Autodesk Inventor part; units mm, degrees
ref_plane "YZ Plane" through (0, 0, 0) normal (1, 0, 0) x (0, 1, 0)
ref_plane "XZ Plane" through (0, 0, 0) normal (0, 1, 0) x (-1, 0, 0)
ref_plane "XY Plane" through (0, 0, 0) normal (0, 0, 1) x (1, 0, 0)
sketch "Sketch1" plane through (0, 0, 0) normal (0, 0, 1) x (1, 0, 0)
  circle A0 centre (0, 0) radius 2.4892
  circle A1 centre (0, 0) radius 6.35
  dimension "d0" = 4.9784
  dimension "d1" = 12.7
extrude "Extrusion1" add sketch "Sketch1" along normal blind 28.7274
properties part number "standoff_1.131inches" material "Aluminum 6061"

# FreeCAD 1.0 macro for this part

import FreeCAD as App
import Part
import Sketcher

V = App.Vector
Q = App.Units.Quantity

doc = App.newDocument("Part")
body = doc.addObject("PartDesign::Body", "Body")

# Sketch on XY plane
sketch1 = body.newObject("Sketcher::SketchObject", "Sketch")
sketch1.AttachmentSupport = (doc.getObject("XY_Plane"), [""])
sketch1.MapMode = "FlatFace"
sketch1.addGeometry([
    Part.Circle(V(0, 0, 0), V(0, 0, 1), 6.3),
    Part.Circle(V(0, 0, 0), V(0, 0, 1), 2.5),
], False)
sketch1.addConstraint([
    Sketcher.Constraint("Coincident", 0, 3, -1, 1),
    Sketcher.Constraint("Coincident", 1, 3, -1, 1),
    Sketcher.Constraint("Diameter", 0, Q("0.5 in")),
    Sketcher.Constraint("Diameter", 1, Q("0.196 in")),
])
pad1 = body.newObject("PartDesign::Pad", "Pad")
pad1.Profile = sketch1
pad1.Length = Q("1.131 in")

doc.recompute()
